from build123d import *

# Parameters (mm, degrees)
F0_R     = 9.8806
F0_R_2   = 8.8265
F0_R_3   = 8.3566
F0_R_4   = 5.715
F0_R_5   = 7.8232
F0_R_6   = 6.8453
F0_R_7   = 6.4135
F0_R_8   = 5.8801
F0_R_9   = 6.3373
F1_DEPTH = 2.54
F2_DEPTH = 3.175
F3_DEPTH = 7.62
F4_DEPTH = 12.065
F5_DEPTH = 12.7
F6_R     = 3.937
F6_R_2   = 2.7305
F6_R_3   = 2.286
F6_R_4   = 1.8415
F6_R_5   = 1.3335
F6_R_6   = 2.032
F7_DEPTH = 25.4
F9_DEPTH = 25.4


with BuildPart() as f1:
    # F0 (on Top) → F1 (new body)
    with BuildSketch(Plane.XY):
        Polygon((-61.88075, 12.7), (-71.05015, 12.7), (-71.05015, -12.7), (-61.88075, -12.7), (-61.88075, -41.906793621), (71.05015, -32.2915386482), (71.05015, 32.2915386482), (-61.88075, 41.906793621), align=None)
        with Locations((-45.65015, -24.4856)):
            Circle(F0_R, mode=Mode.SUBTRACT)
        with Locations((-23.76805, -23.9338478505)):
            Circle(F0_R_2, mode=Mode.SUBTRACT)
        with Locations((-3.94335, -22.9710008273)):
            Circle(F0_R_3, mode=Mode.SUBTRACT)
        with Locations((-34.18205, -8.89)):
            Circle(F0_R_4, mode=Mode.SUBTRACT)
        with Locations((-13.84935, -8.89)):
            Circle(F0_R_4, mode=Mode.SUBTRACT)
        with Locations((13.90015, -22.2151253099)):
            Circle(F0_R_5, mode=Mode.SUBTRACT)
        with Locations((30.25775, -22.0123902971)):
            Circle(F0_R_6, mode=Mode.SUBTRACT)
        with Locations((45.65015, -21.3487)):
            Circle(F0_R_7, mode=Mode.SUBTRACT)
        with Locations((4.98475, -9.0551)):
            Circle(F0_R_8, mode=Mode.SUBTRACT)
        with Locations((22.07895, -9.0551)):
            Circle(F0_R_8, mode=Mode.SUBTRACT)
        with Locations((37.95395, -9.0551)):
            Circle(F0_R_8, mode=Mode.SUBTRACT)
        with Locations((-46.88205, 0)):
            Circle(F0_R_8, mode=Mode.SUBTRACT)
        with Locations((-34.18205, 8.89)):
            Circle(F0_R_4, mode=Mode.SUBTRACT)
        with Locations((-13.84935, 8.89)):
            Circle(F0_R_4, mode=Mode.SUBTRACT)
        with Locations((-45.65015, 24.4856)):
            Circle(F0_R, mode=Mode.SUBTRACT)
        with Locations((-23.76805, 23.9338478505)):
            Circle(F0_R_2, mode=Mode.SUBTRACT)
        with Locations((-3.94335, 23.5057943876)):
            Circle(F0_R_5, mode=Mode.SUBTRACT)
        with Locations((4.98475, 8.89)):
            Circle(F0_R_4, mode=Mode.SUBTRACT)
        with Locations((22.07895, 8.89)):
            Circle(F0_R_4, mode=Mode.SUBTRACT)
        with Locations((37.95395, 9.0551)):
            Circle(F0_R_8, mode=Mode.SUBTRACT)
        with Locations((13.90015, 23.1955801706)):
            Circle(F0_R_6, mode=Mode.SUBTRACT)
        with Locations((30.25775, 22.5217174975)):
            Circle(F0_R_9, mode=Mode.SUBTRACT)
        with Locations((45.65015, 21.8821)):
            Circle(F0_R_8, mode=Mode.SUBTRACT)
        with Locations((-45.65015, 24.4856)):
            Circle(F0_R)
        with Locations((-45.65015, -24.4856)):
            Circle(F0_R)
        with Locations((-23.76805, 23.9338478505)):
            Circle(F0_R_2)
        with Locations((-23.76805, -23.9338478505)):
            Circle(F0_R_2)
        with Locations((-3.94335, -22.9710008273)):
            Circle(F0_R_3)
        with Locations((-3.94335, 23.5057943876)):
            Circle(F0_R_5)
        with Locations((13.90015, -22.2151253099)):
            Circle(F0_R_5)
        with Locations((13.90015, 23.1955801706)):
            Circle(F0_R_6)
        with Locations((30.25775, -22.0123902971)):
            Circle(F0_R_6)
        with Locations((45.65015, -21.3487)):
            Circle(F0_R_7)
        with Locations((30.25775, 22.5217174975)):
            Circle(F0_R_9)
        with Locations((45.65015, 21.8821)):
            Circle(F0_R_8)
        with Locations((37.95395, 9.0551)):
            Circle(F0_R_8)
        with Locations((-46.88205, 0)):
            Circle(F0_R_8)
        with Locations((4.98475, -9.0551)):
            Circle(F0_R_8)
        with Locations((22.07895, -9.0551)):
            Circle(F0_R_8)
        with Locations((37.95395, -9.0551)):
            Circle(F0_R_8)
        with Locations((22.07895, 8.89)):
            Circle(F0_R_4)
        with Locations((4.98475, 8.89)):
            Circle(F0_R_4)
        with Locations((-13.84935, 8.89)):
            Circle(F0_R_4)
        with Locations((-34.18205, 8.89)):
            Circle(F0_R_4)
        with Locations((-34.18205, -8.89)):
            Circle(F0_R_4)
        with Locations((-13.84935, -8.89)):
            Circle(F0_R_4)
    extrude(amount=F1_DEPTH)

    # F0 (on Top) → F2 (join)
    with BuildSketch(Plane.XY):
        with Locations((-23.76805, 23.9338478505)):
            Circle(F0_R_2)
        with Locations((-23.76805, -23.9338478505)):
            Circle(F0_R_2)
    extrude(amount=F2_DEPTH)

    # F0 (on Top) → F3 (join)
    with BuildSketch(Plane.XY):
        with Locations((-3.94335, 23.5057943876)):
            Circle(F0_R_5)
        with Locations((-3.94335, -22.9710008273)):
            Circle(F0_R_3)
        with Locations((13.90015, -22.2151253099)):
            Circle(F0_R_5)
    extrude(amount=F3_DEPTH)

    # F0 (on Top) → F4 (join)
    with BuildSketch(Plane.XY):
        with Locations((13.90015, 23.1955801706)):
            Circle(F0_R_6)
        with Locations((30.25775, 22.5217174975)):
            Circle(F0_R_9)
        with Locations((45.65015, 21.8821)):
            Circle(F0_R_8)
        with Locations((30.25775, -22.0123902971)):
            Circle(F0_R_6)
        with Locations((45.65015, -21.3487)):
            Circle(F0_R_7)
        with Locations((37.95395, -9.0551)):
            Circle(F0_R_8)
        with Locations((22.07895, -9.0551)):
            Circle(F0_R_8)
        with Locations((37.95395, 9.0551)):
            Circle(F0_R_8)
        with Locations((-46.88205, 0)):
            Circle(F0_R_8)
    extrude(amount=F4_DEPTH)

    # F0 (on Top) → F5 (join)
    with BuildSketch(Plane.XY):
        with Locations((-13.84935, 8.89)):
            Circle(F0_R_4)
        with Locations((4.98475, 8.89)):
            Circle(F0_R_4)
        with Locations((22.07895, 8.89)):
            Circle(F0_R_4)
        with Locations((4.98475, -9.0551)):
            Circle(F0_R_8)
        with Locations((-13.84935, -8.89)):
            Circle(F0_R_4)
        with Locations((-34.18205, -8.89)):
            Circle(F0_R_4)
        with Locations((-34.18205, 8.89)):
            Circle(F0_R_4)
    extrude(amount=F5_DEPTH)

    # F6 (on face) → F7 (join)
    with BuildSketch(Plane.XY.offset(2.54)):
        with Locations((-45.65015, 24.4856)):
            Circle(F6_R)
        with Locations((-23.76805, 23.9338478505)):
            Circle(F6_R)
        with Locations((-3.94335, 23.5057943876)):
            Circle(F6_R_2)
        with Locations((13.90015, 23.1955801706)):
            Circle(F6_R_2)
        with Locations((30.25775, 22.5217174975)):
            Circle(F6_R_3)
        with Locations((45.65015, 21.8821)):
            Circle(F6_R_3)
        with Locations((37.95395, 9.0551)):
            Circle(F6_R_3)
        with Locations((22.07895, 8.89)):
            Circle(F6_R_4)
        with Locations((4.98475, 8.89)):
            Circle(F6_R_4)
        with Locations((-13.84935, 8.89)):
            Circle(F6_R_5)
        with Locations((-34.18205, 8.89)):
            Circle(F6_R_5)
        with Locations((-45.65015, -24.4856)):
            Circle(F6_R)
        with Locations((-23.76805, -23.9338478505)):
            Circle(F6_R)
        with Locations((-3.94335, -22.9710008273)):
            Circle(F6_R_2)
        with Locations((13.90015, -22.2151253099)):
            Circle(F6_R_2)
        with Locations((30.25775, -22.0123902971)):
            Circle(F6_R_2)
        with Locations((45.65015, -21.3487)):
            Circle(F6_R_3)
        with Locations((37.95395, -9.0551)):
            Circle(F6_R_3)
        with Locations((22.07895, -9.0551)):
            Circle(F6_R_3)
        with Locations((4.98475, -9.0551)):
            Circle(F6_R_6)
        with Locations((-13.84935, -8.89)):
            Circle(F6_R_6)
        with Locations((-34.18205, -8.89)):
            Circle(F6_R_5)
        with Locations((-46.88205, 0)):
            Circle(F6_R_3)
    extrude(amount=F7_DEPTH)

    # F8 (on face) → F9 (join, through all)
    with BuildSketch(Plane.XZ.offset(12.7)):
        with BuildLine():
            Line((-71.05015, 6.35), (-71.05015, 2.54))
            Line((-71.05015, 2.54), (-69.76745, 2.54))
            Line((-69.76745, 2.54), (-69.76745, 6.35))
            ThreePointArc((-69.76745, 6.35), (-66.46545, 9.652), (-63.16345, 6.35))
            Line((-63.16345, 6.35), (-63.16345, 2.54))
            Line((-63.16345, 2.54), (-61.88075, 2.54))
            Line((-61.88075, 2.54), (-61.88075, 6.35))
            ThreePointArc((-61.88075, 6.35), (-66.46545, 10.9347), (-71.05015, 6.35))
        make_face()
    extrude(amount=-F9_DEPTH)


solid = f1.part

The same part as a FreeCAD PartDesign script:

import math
import FreeCAD as App
import Part
import Sketcher

V = App.Vector
Q = App.Units.Quantity


def add_polygon(sketch, points):
    """Adds a closed chain of lines whose ends are joined by coincident constraints."""
    first, n = sketch.GeometryCount, len(points)
    for a, b in zip(points, points[1:] + points[:1]):
        sketch.addGeometry(Part.LineSegment(App.Vector(*a, 0), App.Vector(*b, 0)), False)
    for i in range(n):
        sketch.addConstraint(Sketcher.Constraint("Coincident", first + i, 2, first + (i + 1) % n, 1))

doc = App.newDocument("Part")
body = doc.addObject("PartDesign::Body", "Body")

sketch1 = body.newObject("Sketcher::SketchObject", "Sketch")
sketch1.AttachmentSupport = (doc.getObject("XY_Plane"), [""])
sketch1.MapMode = "FlatFace"
add_polygon(sketch1, [(-62, 13), (-71, 13), (-71, -13), (-62, -13), (-62, -42), (71, -32), (71, 32), (-62, 42)])
sketch1.addConstraint([
    Sketcher.Constraint("Horizontal", 0),
    Sketcher.Constraint("Vertical", 1),
    Sketcher.Constraint("Horizontal", 2),
    Sketcher.Constraint("Vertical", 3),
    Sketcher.Constraint("Vertical", 5),
    Sketcher.Constraint("Vertical", 7),
    Sketcher.Constraint("Symmetric", 3, 2, 6, 2, -1),
    Sketcher.Constraint("Equal", 3, 7),
    Sketcher.Constraint("Equal", 4, 6),
    Sketcher.Constraint("DistanceY", 1, 2, 1, 1, Q("1 in")),
    Sketcher.Constraint("DistanceX", 0, 2, 0, 1, Q("0.361 in")),
    Sketcher.Constraint("DistanceX", 3, 2, 4, 2, Q("5.2335 in")),
    Sketcher.Constraint("DistanceY", 3, 2, 3, 1, 29.206794),
    Sketcher.Constraint("DistanceY", 5, 1, 5, 2, 64.583077),
    Sketcher.Constraint("DistanceX", 0, 2, -1, 1, 71.05015),
])
pad1 = body.newObject("PartDesign::Pad", "Pad")
pad1.Profile = sketch1
pad1.Length = Q("0.1 in")

sketch2 = body.newObject("Sketcher::SketchObject", "Sketch001")
sketch2.AttachmentSupport = (doc.getObject("XY_Plane"), [""])
sketch2.MapMode = "FlatFace"
sketch2.addGeometry([
    Part.Circle(V(-24, 24, 0), V(0, 0, 1), 9),
    Part.Circle(V(-24, -24, 0), V(0, 0, 1), 9),
], False)
sketch2.addConstraint([
    Sketcher.Constraint("Equal", 0, 1),
    Sketcher.Constraint("Symmetric", 0, 3, 1, 3, -1),
    Sketcher.Constraint("Diameter", 0, Q("0.695 in")),
    Sketcher.Constraint("DistanceX", 0, 3, -1, 1, 23.76805),
    Sketcher.Constraint("DistanceY", -1, 1, 0, 3, 23.933848),
])
pad2 = body.newObject("PartDesign::Pad", "Pad001")
pad2.Profile = sketch2
pad2.Length = Q("0.125 in")

sketch3 = body.newObject("Sketcher::SketchObject", "Sketch002")
sketch3.AttachmentSupport = (doc.getObject("XY_Plane"), [""])
sketch3.MapMode = "FlatFace"
sketch3.addGeometry([
    Part.Circle(V(-4, 24, 0), V(0, 0, 1), 8),
    Part.Circle(V(-4, -23, 0), V(0, 0, 1), 8),
    Part.Circle(V(14, -22, 0), V(0, 0, 1), 8),
], False)
sketch3.addConstraint([
    Sketcher.Constraint("Equal", 0, 2),
    Sketcher.Constraint("Vertical", 0, 3, 1, 3),
    Sketcher.Constraint("Diameter", 0, Q("0.616 in")),
    Sketcher.Constraint("Diameter", 1, Q("0.658 in")),
    Sketcher.Constraint("DistanceX", 1, 3, 2, 3, Q("0.7025 in")),
    Sketcher.Constraint("DistanceY", 1, 3, -1, 1, 22.971001),
    Sketcher.Constraint("DistanceX", 0, 3, -1, 1, 3.94335),
    Sketcher.Constraint("DistanceY", 2, 3, 0, 3, 45.72092),
    Sketcher.Constraint("DistanceY", -1, 1, 0, 3, 23.505794),
])
pad3 = body.newObject("PartDesign::Pad", "Pad002")
pad3.Profile = sketch3
pad3.Length = Q("0.3 in")

sketch4 = body.newObject("Sketcher::SketchObject", "Sketch003")
sketch4.AttachmentSupport = (doc.getObject("XY_Plane"), [""])
sketch4.MapMode = "FlatFace"
sketch4.addGeometry([
    Part.Circle(V(14, 23, 0), V(0, 0, 1), 7),
    Part.Circle(V(30, 23, 0), V(0, 0, 1), 6),
    Part.Circle(V(46, 22, 0), V(0, 0, 1), 6),
    Part.Circle(V(30, -22, 0), V(0, 0, 1), 7),
    Part.Circle(V(46, -21, 0), V(0, 0, 1), 6),
    Part.Circle(V(38, -9, 0), V(0, 0, 1), 6),
    Part.Circle(V(22, -9, 0), V(0, 0, 1), 6),
    Part.Circle(V(38, 9, 0), V(0, 0, 1), 6),
    Part.Circle(V(-47, 0, 0), V(0, 0, 1), 6),
], False)
sketch4.addConstraint([
    Sketcher.Constraint("Equal", 0, 3),
    Sketcher.Constraint("Equal", 2, 5),
    Sketcher.Constraint("Equal", 5, 6),
    Sketcher.Constraint("Equal", 6, 7),
    Sketcher.Constraint("Equal", 7, 8),
    Sketcher.Constraint("Symmetric", 5, 3, 7, 3, -1),
    Sketcher.Constraint("PointOnObject", 8, 3, -1),
    Sketcher.Constraint("Horizontal", 5, 3, 6, 3),
    Sketcher.Constraint("Vertical", 1, 3, 3, 3),
    Sketcher.Constraint("Vertical", 2, 3, 4, 3),
    Sketcher.Constraint("Diameter", 0, Q("0.539 in")),
    Sketcher.Constraint("Diameter", 1, Q("0.499 in")),
    Sketcher.Constraint("Diameter", 2, Q("0.463 in")),
    Sketcher.Constraint("Diameter", 4, Q("0.505 in")),
    Sketcher.Constraint("DistanceX", 0, 3, 2, 3, Q("1.25 in")),
    Sketcher.Constraint("DistanceX", 8, 3, 5, 3, Q("3.34 in")),
    Sketcher.Constraint("DistanceX", 0, 3, 1, 3, Q("0.644 in")),
    Sketcher.Constraint("DistanceY", 4, 3, 2, 3, Q("1.702 in")),
    Sketcher.Constraint("DistanceX", 5, 3, 4, 3, Q("0.303 in")),
    Sketcher.Constraint("DistanceY", 4, 3, 5, 3, Q("0.484 in")),
    Sketcher.Constraint("DistanceX", 6, 3, 3, 3, Q("0.322 in")),
    Sketcher.Constraint("DistanceY", 7, 3, 2, 3, Q("0.505 in")),
    Sketcher.Constraint("DistanceX", -1, 1, 0, 3, 13.90015),
    Sketcher.Constraint("DistanceY", -1, 1, 0, 3, 23.19558),
    Sketcher.Constraint("DistanceY", 3, 3, -1, 1, 22.01239),
    Sketcher.Constraint("DistanceY", -1, 1, 1, 3, 22.521717),
])
pad4 = body.newObject("PartDesign::Pad", "Pad003")
pad4.Profile = sketch4
pad4.Length = Q("0.475 in")

sketch5 = body.newObject("Sketcher::SketchObject", "Sketch004")
sketch5.AttachmentSupport = (doc.getObject("XY_Plane"), [""])
sketch5.MapMode = "FlatFace"
sketch5.addGeometry([
    Part.Circle(V(-14, 9, 0), V(0, 0, 1), 6),
    Part.Circle(V(5, 9, 0), V(0, 0, 1), 6),
    Part.Circle(V(22, 9, 0), V(0, 0, 1), 6),
    Part.Circle(V(5, -9, 0), V(0, 0, 1), 6),
    Part.Circle(V(-14, -9, 0), V(0, 0, 1), 6),
    Part.Circle(V(-34, -9, 0), V(0, 0, 1), 6),
    Part.Circle(V(-34, 9, 0), V(0, 0, 1), 6),
], False)
sketch5.addConstraint([
    Sketcher.Constraint("Equal", 0, 1),
    Sketcher.Constraint("Equal", 1, 2),
    Sketcher.Constraint("Equal", 2, 4),
    Sketcher.Constraint("Equal", 4, 5),
    Sketcher.Constraint("Equal", 5, 6),
    Sketcher.Constraint("Symmetric", 0, 3, 4, 3, -1),
    Sketcher.Constraint("Symmetric", 5, 3, 6, 3, -1),
    Sketcher.Constraint("Horizontal", 0, 3, 1, 3),
    Sketcher.Constraint("Horizontal", 1, 3, 2, 3),
    Sketcher.Constraint("Horizontal", 4, 3, 5, 3),
    Sketcher.Constraint("Vertical", 1, 3, 3, 3),
    Sketcher.Constraint("Diameter", 0, Q("0.45 in")),
    Sketcher.Constraint("Diameter", 3, Q("0.463 in")),
    Sketcher.Constraint("DistanceY", 4, 3, 0, 3, Q("0.7 in")),
    Sketcher.Constraint("DistanceX", 1, 3, 2, 3, Q("0.673 in")),
    Sketcher.Constraint("DistanceX", 5, 3, 3, 3, Q("1.542 in")),
    Sketcher.Constraint("DistanceY", 3, 3, -1, 1, Q("0.3565 in")),
    Sketcher.Constraint("DistanceX", 0, 3, 1, 3, Q("0.7415 in")),
    Sketcher.Constraint("DistanceX", 0, 3, -1, 1, 13.84935),
])
pad5 = body.newObject("PartDesign::Pad", "Pad004")
pad5.Profile = sketch5
pad5.Length = Q("0.5 in")

sketch6 = body.newObject("Sketcher::SketchObject", "Sketch005")
sketch6.AttachmentSupport = (doc.getObject("XY_Plane"), [""])
sketch6.MapMode = "FlatFace"
sketch6.AttachmentOffset = App.Placement(V(0, 0, 0.1 * 25.4), App.Rotation())
sketch6.addGeometry([
    Part.Circle(V(-45.7, 24.5, 0), V(0, 0, 1), 3.9),
    Part.Circle(V(-23.8, 23.9, 0), V(0, 0, 1), 3.9),
    Part.Circle(V(-3.9, 23.5, 0), V(0, 0, 1), 2.7),
    Part.Circle(V(13.9, 23.2, 0), V(0, 0, 1), 2.7),
    Part.Circle(V(30.3, 22.5, 0), V(0, 0, 1), 2.3),
    Part.Circle(V(45.7, 21.9, 0), V(0, 0, 1), 2.3),
    Part.Circle(V(38, 9.1, 0), V(0, 0, 1), 2.3),
    Part.Circle(V(22.1, 8.9, 0), V(0, 0, 1), 1.8),
    Part.Circle(V(5, 8.9, 0), V(0, 0, 1), 1.8),
    Part.Circle(V(-13.8, 8.9, 0), V(0, 0, 1), 1.3),
    Part.Circle(V(-34.2, 8.9, 0), V(0, 0, 1), 1.3),
    Part.Circle(V(-45.7, -24.5, 0), V(0, 0, 1), 3.9),
    Part.Circle(V(-23.8, -23.9, 0), V(0, 0, 1), 3.9),
    Part.Circle(V(-3.9, -23, 0), V(0, 0, 1), 2.7),
    Part.Circle(V(13.9, -22.2, 0), V(0, 0, 1), 2.7),
    Part.Circle(V(30.3, -22, 0), V(0, 0, 1), 2.7),
    Part.Circle(V(45.7, -21.3, 0), V(0, 0, 1), 2.3),
    Part.Circle(V(38, -9.1, 0), V(0, 0, 1), 2.3),
    Part.Circle(V(22.1, -9.1, 0), V(0, 0, 1), 2.3),
    Part.Circle(V(5, -9.1, 0), V(0, 0, 1), 2),
    Part.Circle(V(-13.8, -8.9, 0), V(0, 0, 1), 2),
    Part.Circle(V(-34.2, -8.9, 0), V(0, 0, 1), 1.3),
    Part.Circle(V(-46.9, 0, 0), V(0, 0, 1), 2.3),
], False)
sketch6.addConstraint([
    Sketcher.Constraint("Equal", 0, 1),
    Sketcher.Constraint("Equal", 2, 3),
    Sketcher.Constraint("Equal", 4, 5),
    Sketcher.Constraint("Equal", 5, 6),
    Sketcher.Constraint("Equal", 7, 8),
    Sketcher.Constraint("Equal", 9, 10),
    Sketcher.Constraint("Equal", 1, 11),
    Sketcher.Constraint("Equal", 11, 12),
    Sketcher.Constraint("Equal", 3, 13),
    Sketcher.Constraint("Equal", 13, 14),
    Sketcher.Constraint("Equal", 14, 15),
    Sketcher.Constraint("Equal", 6, 16),
    Sketcher.Constraint("Equal", 16, 17),
    Sketcher.Constraint("Equal", 17, 18),
    Sketcher.Constraint("Equal", 19, 20),
    Sketcher.Constraint("Equal", 10, 21),
    Sketcher.Constraint("Equal", 18, 22),
    Sketcher.Constraint("Symmetric", 0, 3, 11, 3, -1),
    Sketcher.Constraint("Symmetric", 1, 3, 12, 3, -1),
    Sketcher.Constraint("Symmetric", 6, 3, 17, 3, -1),
    Sketcher.Constraint("Symmetric", 9, 3, 20, 3, -1),
    Sketcher.Constraint("Symmetric", 10, 3, 21, 3, -1),
    Sketcher.Constraint("PointOnObject", 22, 3, -1),
    Sketcher.Constraint("Horizontal", 7, 3, 8, 3),
    Sketcher.Constraint("Horizontal", 8, 3, 9, 3),
    Sketcher.Constraint("Horizontal", 9, 3, 10, 3),
    Sketcher.Constraint("Horizontal", 17, 3, 18, 3),
    Sketcher.Constraint("Horizontal", 18, 3, 19, 3),
    Sketcher.Constraint("Vertical", 2, 3, 13, 3),
    Sketcher.Constraint("Vertical", 3, 3, 14, 3),
    Sketcher.Constraint("Vertical", 4, 3, 15, 3),
    Sketcher.Constraint("Vertical", 5, 3, 16, 3),
    Sketcher.Constraint("Vertical", 7, 3, 18, 3),
    Sketcher.Constraint("Vertical", 8, 3, 19, 3),
    Sketcher.Constraint("Diameter", 0, Q("0.31 in")),
    Sketcher.Constraint("Diameter", 4, Q("0.18 in")),
    Sketcher.Constraint("Diameter", 19, Q("0.16 in")),
    Sketcher.Constraint("Diameter", 2, Q("0.215 in")),
    Sketcher.Constraint("Diameter", 7, Q("0.145 in")),
    Sketcher.Constraint("Diameter", 9, Q("0.105 in")),
    Sketcher.Constraint("DistanceY", 20, 3, 9, 3, Q("0.7 in")),
    Sketcher.Constraint("DistanceX", 22, 3, 10, 3, Q("0.5 in")),
    Sketcher.Constraint("DistanceX", 3, 3, 5, 3, Q("1.25 in")),
    Sketcher.Constraint("DistanceX", 1, 3, 6, 3, Q("2.43 in")),
    Sketcher.Constraint("DistanceX", 9, 3, 2, 3, Q("0.39 in")),
    Sketcher.Constraint("DistanceX", 10, 3, 1, 3, Q("0.41 in")),
    Sketcher.Constraint("DistanceY", -1, 1, 0, 3, Q("0.964 in")),
    Sketcher.Constraint("DistanceX", 0, 3, 2, 3, Q("1.642 in")),
    Sketcher.Constraint("DistanceX", 1, 3, 3, 3, Q("1.483 in")),
    Sketcher.Constraint("DistanceX", 3, 3, 4, 3, Q("0.644 in")),
    Sketcher.Constraint("DistanceY", 6, 3, 5, 3, Q("0.505 in")),
    Sketcher.Constraint("DistanceX", 7, 3, 6, 3, Q("0.625 in")),
    Sketcher.Constraint("DistanceX", 8, 3, 3, 3, Q("0.351 in")),
    Sketcher.Constraint("DistanceY", 16, 3, 6, 3, Q("1.197 in")),
    Sketcher.Constraint("DistanceY", 16, 3, 17, 3, Q("0.484 in")),
    Sketcher.Constraint("DistanceX", 0, 3, 1, 3, Q("0.8615 in")),
    Sketcher.Constraint("DistanceY", 13, 3, -1, 1, 22.971001),
    Sketcher.Constraint("DistanceX", 0, 3, -1, 1, 45.65015),
    Sketcher.Constraint("DistanceY", -1, 1, 3, 3, 23.19558),
    Sketcher.Constraint("DistanceY", 15, 3, -1, 1, 22.01239),
    Sketcher.Constraint("DistanceY", 4, 3, 1, 3, 1.41213),
    Sketcher.Constraint("DistanceY", -1, 1, 1, 3, 23.933848),
    Sketcher.Constraint("DistanceY", -1, 1, 2, 3, 23.505794),
    Sketcher.Constraint("DistanceY", 14, 3, -1, 1, 22.215125),
])
pad6 = body.newObject("PartDesign::Pad", "Pad005")
pad6.Profile = sketch6
pad6.Length = Q("1 in")

sketch7 = body.newObject("Sketcher::SketchObject", "Sketch006")
sketch7.AttachmentSupport = (doc.getObject("XZ_Plane"), [""])
sketch7.MapMode = "FlatFace"
sketch7.AttachmentOffset = App.Placement(V(0, 0, 0.5 * 25.4), App.Rotation())
sketch7.addGeometry([
    Part.LineSegment(V(-71.1, 6.3, 0), V(-71.1, 2.5, 0)),
    Part.LineSegment(V(-71.1, 2.5, 0), V(-69.8, 2.5, 0)),
    Part.LineSegment(V(-69.8, 2.5, 0), V(-69.8, 6.3, 0)),
    Part.ArcOfCircle(Part.Circle(V(-66.5, 6.3, 0), V(0, 0, 1), 3.3), math.radians(0), math.radians(180)),
    Part.LineSegment(V(-63.2, 6.3, 0), V(-63.2, 2.5, 0)),
    Part.LineSegment(V(-63.2, 2.5, 0), V(-61.9, 2.5, 0)),
    Part.LineSegment(V(-61.9, 2.5, 0), V(-61.9, 6.3, 0)),
    Part.ArcOfCircle(Part.Circle(V(-66.5, 6.3, 0), V(0, 0, 1), 4.6), math.radians(0), math.radians(180)),
], False)
sketch7.addConstraint([
    Sketcher.Constraint("Coincident", 0, 2, 1, 1),
    Sketcher.Constraint("Coincident", 1, 2, 2, 1),
    Sketcher.Constraint("Tangent", 2, 2, 3, 2),
    Sketcher.Constraint("Tangent", 3, 1, 4, 1),
    Sketcher.Constraint("Coincident", 4, 2, 5, 1),
    Sketcher.Constraint("Coincident", 5, 2, 6, 1),
    Sketcher.Constraint("Tangent", 6, 2, 7, 1),
    Sketcher.Constraint("Tangent", 7, 2, 0, 1),
    Sketcher.Constraint("Vertical", 0),
    Sketcher.Constraint("Horizontal", 1),
    Sketcher.Constraint("Vertical", 2),
    Sketcher.Constraint("Vertical", 4),
    Sketcher.Constraint("Horizontal", 5),
    Sketcher.Constraint("Vertical", 6),
    Sketcher.Constraint("Coincident", 7, 3, 3, 3),
    Sketcher.Constraint("Horizontal", 1, 2, 4, 2),
    Sketcher.Constraint("Radius", 3, Q("0.13 in")),
    Sketcher.Constraint("DistanceY", 0, 2, 0, 1, Q("0.15 in")),
    Sketcher.Constraint("DistanceY", -1, 1, 0, 2, Q("0.1 in")),
    Sketcher.Constraint("Radius", 7, Q("0.1805 in")),
    Sketcher.Constraint("DistanceX", 3, 3, -1, 1, 66.46545),
])
pad7 = body.newObject("PartDesign::Pad", "Pad006")
pad7.Profile = sketch7
pad7.Length = Q("1 in")
pad7.Reversed = True

doc.recompute()
